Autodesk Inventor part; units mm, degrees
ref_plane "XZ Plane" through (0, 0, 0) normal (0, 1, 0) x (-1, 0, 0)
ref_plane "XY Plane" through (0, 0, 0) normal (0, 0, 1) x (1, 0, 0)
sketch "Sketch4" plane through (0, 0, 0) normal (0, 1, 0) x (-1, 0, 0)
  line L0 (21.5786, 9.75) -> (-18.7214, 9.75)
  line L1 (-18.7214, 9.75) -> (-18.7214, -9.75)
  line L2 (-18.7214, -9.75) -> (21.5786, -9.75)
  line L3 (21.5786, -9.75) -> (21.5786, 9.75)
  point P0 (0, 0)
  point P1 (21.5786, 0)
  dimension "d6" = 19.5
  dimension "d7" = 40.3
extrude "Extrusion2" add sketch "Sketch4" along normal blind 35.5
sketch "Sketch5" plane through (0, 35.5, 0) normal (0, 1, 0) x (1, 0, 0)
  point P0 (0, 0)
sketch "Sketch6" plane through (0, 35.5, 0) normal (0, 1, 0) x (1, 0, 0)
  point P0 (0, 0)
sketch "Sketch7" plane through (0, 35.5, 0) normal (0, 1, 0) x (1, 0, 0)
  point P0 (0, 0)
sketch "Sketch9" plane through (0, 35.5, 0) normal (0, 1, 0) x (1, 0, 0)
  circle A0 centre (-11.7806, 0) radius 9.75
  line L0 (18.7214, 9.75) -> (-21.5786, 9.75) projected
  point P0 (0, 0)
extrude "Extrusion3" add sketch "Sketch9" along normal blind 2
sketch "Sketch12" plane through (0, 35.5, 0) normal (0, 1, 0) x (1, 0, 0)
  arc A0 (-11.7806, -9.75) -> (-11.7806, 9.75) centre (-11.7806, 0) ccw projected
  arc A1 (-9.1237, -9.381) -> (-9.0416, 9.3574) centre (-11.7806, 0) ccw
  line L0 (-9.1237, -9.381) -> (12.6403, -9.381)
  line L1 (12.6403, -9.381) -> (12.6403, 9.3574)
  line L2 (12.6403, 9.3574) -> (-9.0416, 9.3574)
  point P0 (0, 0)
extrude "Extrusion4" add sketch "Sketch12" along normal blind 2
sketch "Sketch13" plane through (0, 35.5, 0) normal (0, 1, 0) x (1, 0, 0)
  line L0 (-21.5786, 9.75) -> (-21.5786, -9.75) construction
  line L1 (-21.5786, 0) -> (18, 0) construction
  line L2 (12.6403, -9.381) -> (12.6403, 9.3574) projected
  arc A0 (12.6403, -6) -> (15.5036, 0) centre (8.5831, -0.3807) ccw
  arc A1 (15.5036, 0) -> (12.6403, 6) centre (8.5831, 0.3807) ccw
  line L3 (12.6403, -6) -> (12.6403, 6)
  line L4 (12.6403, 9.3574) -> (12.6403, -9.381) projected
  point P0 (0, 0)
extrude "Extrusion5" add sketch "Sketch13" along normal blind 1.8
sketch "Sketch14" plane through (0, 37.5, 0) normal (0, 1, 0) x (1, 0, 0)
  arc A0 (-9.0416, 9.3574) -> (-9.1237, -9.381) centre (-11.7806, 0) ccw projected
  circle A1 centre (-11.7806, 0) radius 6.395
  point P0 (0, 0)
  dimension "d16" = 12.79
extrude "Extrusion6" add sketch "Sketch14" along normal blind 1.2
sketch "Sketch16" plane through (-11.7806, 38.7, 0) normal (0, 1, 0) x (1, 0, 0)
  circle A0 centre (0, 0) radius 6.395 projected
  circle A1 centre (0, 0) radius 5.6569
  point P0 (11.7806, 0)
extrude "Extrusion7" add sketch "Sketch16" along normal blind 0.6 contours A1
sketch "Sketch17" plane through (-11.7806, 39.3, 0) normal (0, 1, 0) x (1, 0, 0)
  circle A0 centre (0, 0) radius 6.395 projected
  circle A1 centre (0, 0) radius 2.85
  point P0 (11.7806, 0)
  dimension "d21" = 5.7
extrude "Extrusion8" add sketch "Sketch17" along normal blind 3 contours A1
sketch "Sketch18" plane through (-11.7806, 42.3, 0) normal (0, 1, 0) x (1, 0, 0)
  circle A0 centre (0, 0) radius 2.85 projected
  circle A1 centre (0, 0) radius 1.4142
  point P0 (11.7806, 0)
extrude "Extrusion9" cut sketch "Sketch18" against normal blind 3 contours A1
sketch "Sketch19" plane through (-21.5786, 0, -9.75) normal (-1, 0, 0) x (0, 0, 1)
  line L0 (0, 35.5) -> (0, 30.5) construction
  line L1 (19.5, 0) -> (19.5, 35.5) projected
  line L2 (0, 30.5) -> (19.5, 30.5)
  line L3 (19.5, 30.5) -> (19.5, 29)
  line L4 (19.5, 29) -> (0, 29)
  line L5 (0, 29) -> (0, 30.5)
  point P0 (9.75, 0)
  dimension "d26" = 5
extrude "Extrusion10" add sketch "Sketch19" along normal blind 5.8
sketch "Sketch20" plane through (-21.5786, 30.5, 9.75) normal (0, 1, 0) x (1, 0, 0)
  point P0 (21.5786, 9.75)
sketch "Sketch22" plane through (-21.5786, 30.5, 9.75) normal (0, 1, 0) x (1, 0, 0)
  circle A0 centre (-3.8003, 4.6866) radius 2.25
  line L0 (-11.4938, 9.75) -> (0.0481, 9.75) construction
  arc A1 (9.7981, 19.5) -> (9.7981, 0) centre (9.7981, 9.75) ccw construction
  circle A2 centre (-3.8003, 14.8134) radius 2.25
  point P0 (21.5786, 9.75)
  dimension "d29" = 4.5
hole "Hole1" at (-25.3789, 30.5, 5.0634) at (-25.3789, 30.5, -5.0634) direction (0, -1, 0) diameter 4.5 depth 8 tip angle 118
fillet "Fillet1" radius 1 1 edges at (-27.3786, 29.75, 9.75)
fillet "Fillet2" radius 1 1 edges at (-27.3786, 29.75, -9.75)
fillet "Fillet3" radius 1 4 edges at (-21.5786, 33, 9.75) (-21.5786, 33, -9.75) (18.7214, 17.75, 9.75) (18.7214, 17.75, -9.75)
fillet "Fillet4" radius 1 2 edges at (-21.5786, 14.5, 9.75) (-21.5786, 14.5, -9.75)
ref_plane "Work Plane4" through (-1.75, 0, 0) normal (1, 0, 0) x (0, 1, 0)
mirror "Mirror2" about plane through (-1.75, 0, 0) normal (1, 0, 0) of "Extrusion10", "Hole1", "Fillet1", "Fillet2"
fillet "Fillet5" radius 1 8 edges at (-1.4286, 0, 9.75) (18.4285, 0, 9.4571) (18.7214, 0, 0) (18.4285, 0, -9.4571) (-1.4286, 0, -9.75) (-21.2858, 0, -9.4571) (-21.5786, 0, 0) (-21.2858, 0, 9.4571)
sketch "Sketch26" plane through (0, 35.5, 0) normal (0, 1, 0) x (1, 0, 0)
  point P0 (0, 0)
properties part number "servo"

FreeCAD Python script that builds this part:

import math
import FreeCAD as App
import Part
import Sketcher


def edges_at(feature, points):
    """Names of the edges that pass closest to the given points."""
    edges = feature.Shape.Edges
    near = lambda p: min(range(len(edges)), key=lambda i: edges[i].distToShape(Part.Vertex(*p))[0])
    return sorted({f"Edge{near(p) + 1}" for p in points})

doc = App.newDocument("Part")
body = doc.addObject("PartDesign::Body", "Body")

# Sketch on XZ plane
sketch1 = body.newObject("Sketcher::SketchObject", "Sketch")
sketch1.AttachmentSupport = (doc.getObject("XZ_Plane"), [""])
sketch1.MapMode = "FlatFace"
sketch1.addGeometry([
    Part.LineSegment(App.Vector(-22, -10, 0), App.Vector(-22, 10, 0)),
    Part.LineSegment(App.Vector(-22, 10, 0), App.Vector(19, 10, 0)),
    Part.LineSegment(App.Vector(19, 10, 0), App.Vector(19, -10, 0)),
    Part.LineSegment(App.Vector(19, -10, 0), App.Vector(-22, -10, 0)),
], False)
sketch1.addConstraint([
    Sketcher.Constraint("Coincident", 0, 2, 1, 1),
    Sketcher.Constraint("Coincident", 1, 2, 2, 1),
    Sketcher.Constraint("Coincident", 2, 2, 3, 1),
    Sketcher.Constraint("Coincident", 3, 2, 0, 1),
    Sketcher.Constraint("Vertical", 0),
    Sketcher.Constraint("Horizontal", 1),
    Sketcher.Constraint("Vertical", 2),
    Sketcher.Constraint("Horizontal", 3),
    Sketcher.Constraint("DistanceX", 1, 1, 1, 2, 40.3),
    Sketcher.Constraint("DistanceY", 0, 1, 0, 2, 19.5),
    Sketcher.Constraint("DistanceY", -1, 1, 0, 2, 9.75),
    Sketcher.Constraint("DistanceX", 0, 2, -1, 1, 21.5786),
])
pad1 = body.newObject("PartDesign::Pad", "Pad")
pad1.Profile = sketch1
pad1.Length = 35.5
pad1.Reversed = True

# Sketch on XZ plane
sketch2 = body.newObject("Sketcher::SketchObject", "Sketch001")
sketch2.AttachmentSupport = (doc.getObject("XZ_Plane"), [""])
sketch2.MapMode = "FlatFace"
sketch2.AttachmentOffset = App.Placement(App.Vector(0, 0, -35.5), App.Rotation())
sketch2.addGeometry(Part.Circle(App.Vector(-12, 0, 0), App.Vector(0, 0, 1), 10), False)
sketch2.addConstraint([
    Sketcher.Constraint("PointOnObject", 0, 3, -1),
    Sketcher.Constraint("Diameter", 0, 19.5),
    Sketcher.Constraint("DistanceX", 0, 3, -1, 1, 11.7806),
])
pad2 = body.newObject("PartDesign::Pad", "Pad001")
pad2.Profile = sketch2
pad2.Length = 2
pad2.Reversed = True

# Sketch on XZ plane
sketch3 = body.newObject("Sketcher::SketchObject", "Sketch002")
sketch3.AttachmentSupport = (doc.getObject("XZ_Plane"), [""])
sketch3.MapMode = "FlatFace"
sketch3.AttachmentOffset = App.Placement(App.Vector(0, 0, -35.5), App.Rotation())
sketch3.addGeometry([
    Part.ArcOfCircle(Part.Circle(App.Vector(-12, 0, 0), App.Vector(0, 0, 1), 10), math.radians(-74), math.radians(74)),
    Part.LineSegment(App.Vector(-9, 9, 0), App.Vector(13, 9, 0)),
    Part.LineSegment(App.Vector(13, 9, 0), App.Vector(13, -9, 0)),
    Part.LineSegment(App.Vector(13, -9, 0), App.Vector(-9, -9, 0)),
], False)
sketch3.addConstraint([
    Sketcher.Constraint("Coincident", 0, 2, 1, 1),
    Sketcher.Constraint("Coincident", 1, 2, 2, 1),
    Sketcher.Constraint("Coincident", 2, 2, 3, 1),
    Sketcher.Constraint("Coincident", 3, 2, 0, 1),
    Sketcher.Constraint("Horizontal", 1),
    Sketcher.Constraint("Vertical", 2),
    Sketcher.Constraint("Horizontal", 3),
    Sketcher.Constraint("PointOnObject", 0, 3, -1),
    Sketcher.Constraint("Radius", 0, 9.75),
    Sketcher.Constraint("DistanceX", 1, 1, 1, 2, 21.764),
    Sketcher.Constraint("DistanceX", 3, 2, 3, 1, 21.682),
    Sketcher.Constraint("DistanceY", 2, 2, 2, 1, 18.7384),
    Sketcher.Constraint("DistanceX", 0, 3, -1, 1, 11.7806),
])
pad3 = body.newObject("PartDesign::Pad", "Pad002")
pad3.Profile = sketch3
pad3.Length = 2
pad3.Reversed = True

# Sketch on XZ plane
sketch4 = body.newObject("Sketcher::SketchObject", "Sketch003")
sketch4.AttachmentSupport = (doc.getObject("XZ_Plane"), [""])
sketch4.MapMode = "FlatFace"
sketch4.AttachmentOffset = App.Placement(App.Vector(0, 0, -35.5), App.Rotation())
sketch4.addGeometry([
    Part.LineSegment(App.Vector(12.6403, -6, 0), App.Vector(12.6403, 6, 0)),
    Part.ArcOfCircle(Part.Circle(App.Vector(8.5831, 0.3807, 0), App.Vector(0, 0, 1), 6.930902), math.radians(-3.148695), math.radians(54.170277)),
    Part.ArcOfCircle(Part.Circle(App.Vector(8.5831, -0.3807, 0), App.Vector(0, 0, 1), 6.930963), math.radians(-54.170277), math.radians(3.148695)),
], False)
sketch4.addConstraint([
    Sketcher.Constraint("Coincident", 0, 2, 1, 2),
    Sketcher.Constraint("Coincident", 1, 1, 2, 2),
    Sketcher.Constraint("Coincident", 2, 1, 0, 1),
    Sketcher.Constraint("Vertical", 0),
    Sketcher.Constraint("Equal", 1, 2),
    Sketcher.Constraint("Symmetric", 1, 3, 2, 3, -1),
    Sketcher.Constraint("DistanceY", 0, 1, 0, 2, 12.0),
    Sketcher.Constraint("Radius", 1, 6.931),
    Sketcher.Constraint("DistanceX", -1, 1, 1, 3, 8.583),
    Sketcher.Constraint("DistanceY", -1, 1, 1, 3, 0.3807),
])
pad4 = body.newObject("PartDesign::Pad", "Pad003")
pad4.Profile = sketch4
pad4.Length = 1.8
pad4.Reversed = True

# Sketch on XZ plane
sketch5 = body.newObject("Sketcher::SketchObject", "Sketch004")
sketch5.AttachmentSupport = (doc.getObject("XZ_Plane"), [""])
sketch5.MapMode = "FlatFace"
sketch5.AttachmentOffset = App.Placement(App.Vector(0, 0, -37.5), App.Rotation())
sketch5.addGeometry(Part.Circle(App.Vector(-12, 0, 0), App.Vector(0, 0, 1), 6), False)
sketch5.addConstraint([
    Sketcher.Constraint("PointOnObject", 0, 3, -1),
    Sketcher.Constraint("Diameter", 0, 12.79),
    Sketcher.Constraint("DistanceX", 0, 3, -1, 1, 11.7806),
])
pad5 = body.newObject("PartDesign::Pad", "Pad004")
pad5.Profile = sketch5
pad5.Length = 1.2
pad5.Reversed = True

# Sketch on XZ plane
sketch6 = body.newObject("Sketcher::SketchObject", "Sketch005")
sketch6.AttachmentSupport = (doc.getObject("XZ_Plane"), [""])
sketch6.MapMode = "FlatFace"
sketch6.AttachmentOffset = App.Placement(App.Vector(0, 0, -38.7), App.Rotation())
sketch6.addGeometry(Part.Circle(App.Vector(-12, 0, 0), App.Vector(0, 0, 1), 6), False)
sketch6.addConstraint([
    Sketcher.Constraint("PointOnObject", 0, 3, -1),
    Sketcher.Constraint("Diameter", 0, 11.3138),
    Sketcher.Constraint("DistanceX", 0, 3, -1, 1, 11.7806),
])
pad6 = body.newObject("PartDesign::Pad", "Pad005")
pad6.Profile = sketch6
pad6.Length = 0.6
pad6.Reversed = True

# Sketch on XZ plane
sketch7 = body.newObject("Sketcher::SketchObject", "Sketch006")
sketch7.AttachmentSupport = (doc.getObject("XZ_Plane"), [""])
sketch7.MapMode = "FlatFace"
sketch7.AttachmentOffset = App.Placement(App.Vector(0, 0, -39.3), App.Rotation())
sketch7.addGeometry(Part.Circle(App.Vector(-11.8, 0, 0), App.Vector(0, 0, 1), 2.9), False)
sketch7.addConstraint([
    Sketcher.Constraint("PointOnObject", 0, 3, -1),
    Sketcher.Constraint("Diameter", 0, 5.7),
    Sketcher.Constraint("DistanceX", 0, 3, -1, 1, 11.7806),
])
pad7 = body.newObject("PartDesign::Pad", "Pad006")
pad7.Profile = sketch7
pad7.Length = 3
pad7.Reversed = True

# Sketch on XZ plane
sketch8 = body.newObject("Sketcher::SketchObject", "Sketch007")
sketch8.AttachmentSupport = (doc.getObject("XZ_Plane"), [""])
sketch8.MapMode = "FlatFace"
sketch8.AttachmentOffset = App.Placement(App.Vector(0, 0, -42.3), App.Rotation())
sketch8.addGeometry(Part.Circle(App.Vector(-11.8, 0, 0), App.Vector(0, 0, 1), 1.4), False)
sketch8.addConstraint([
    Sketcher.Constraint("PointOnObject", 0, 3, -1),
    Sketcher.Constraint("Diameter", 0, 2.8284),
    Sketcher.Constraint("DistanceX", 0, 3, -1, 1, 11.7806),
])
pocket1 = body.newObject("PartDesign::Pocket", "Pocket")
pocket1.Profile = sketch8
pocket1.Length = 3
pocket1.Reversed = True

# Sketch on YZ plane
sketch9 = body.newObject("Sketcher::SketchObject", "Sketch008")
sketch9.AttachmentSupport = (doc.getObject("YZ_Plane"), [""])
sketch9.MapMode = "FlatFace"
sketch9.AttachmentOffset = App.Placement(App.Vector(0, 0, -21.5786), App.Rotation())
sketch9.addGeometry([
    Part.LineSegment(App.Vector(29, -9.8, 0), App.Vector(29, 9.8, 0)),
    Part.LineSegment(App.Vector(29, 9.8, 0), App.Vector(30.5, 9.8, 0)),
    Part.LineSegment(App.Vector(30.5, 9.8, 0), App.Vector(30.5, -9.8, 0)),
    Part.LineSegment(App.Vector(30.5, -9.8, 0), App.Vector(29, -9.8, 0)),
], False)
sketch9.addConstraint([
    Sketcher.Constraint("Coincident", 0, 2, 1, 1),
    Sketcher.Constraint("Coincident", 1, 2, 2, 1),
    Sketcher.Constraint("Coincident", 2, 2, 3, 1),
    Sketcher.Constraint("Coincident", 3, 2, 0, 1),
    Sketcher.Constraint("Vertical", 0),
    Sketcher.Constraint("Horizontal", 1),
    Sketcher.Constraint("Vertical", 2),
    Sketcher.Constraint("Horizontal", 3),
    Sketcher.Constraint("DistanceX", 1, 1, 1, 2, 1.5),
    Sketcher.Constraint("DistanceY", 0, 1, 0, 2, 19.5),
    Sketcher.Constraint("DistanceX", -1, 1, 0, 2, 29.0),
    Sketcher.Constraint("DistanceY", -1, 1, 0, 2, 9.75),
])
pad8 = body.newObject("PartDesign::Pad", "Pad007")
pad8.Profile = sketch9
pad8.Length = 5.8
pad8.Reversed = True

# Sketch on XZ plane
sketch10 = body.newObject("Sketcher::SketchObject", "Sketch009")
sketch10.AttachmentSupport = (doc.getObject("XZ_Plane"), [""])
sketch10.MapMode = "FlatFace"
sketch10.AttachmentOffset = App.Placement(App.Vector(0, 0, -30.5), App.Rotation())
sketch10.addGeometry([
    Part.Circle(App.Vector(-25.4, 5.1, 0), App.Vector(0, 0, 1), 2.2),
    Part.Circle(App.Vector(-25.4, -5.1, 0), App.Vector(0, 0, 1), 2.2),
], False)
sketch10.addConstraint([
    Sketcher.Constraint("Equal", 0, 1),
    Sketcher.Constraint("Symmetric", 0, 3, 1, 3, -1),
    Sketcher.Constraint("Diameter", 0, 4.5),
    Sketcher.Constraint("DistanceX", 0, 3, -1, 1, 25.379),
    Sketcher.Constraint("DistanceY", -1, 1, 0, 3, 5.0634),
])
doc.recompute()
hole = body.newObject("PartDesign::Hole", "Hole")
hole.Profile = sketch10
hole.ThreadType = "None"
hole.Diameter = 4.5
hole.DepthType = "Dimension"
hole.Depth = 8
hole.DrillPoint = "Angled"
hole.DrillPointAngle = 118
hole.Reversed = True
doc.recompute()

fillet = body.newObject("PartDesign::Fillet", "Fillet")
fillet.Base = (hole, edges_at(hole, [(-27.379, 29.75, 9.75)]))
fillet.Radius = 1
doc.recompute()

fillet2 = body.newObject("PartDesign::Fillet", "Fillet001")
fillet2.Base = (fillet, edges_at(fillet, [(-27.379, 29.75, -9.75)]))
fillet2.Radius = 1
doc.recompute()

fillet3 = body.newObject("PartDesign::Fillet", "Fillet002")
fillet3.Base = (fillet2, edges_at(fillet2, [
    (-21.579, 33, 9.75),
    (-21.579, 33, -9.75),
    (18.721, 17.75, 9.75),
    (18.721, 17.75, -9.75),
]))
fillet3.Radius = 1
doc.recompute()

fillet4 = body.newObject("PartDesign::Fillet", "Fillet003")
fillet4.Base = (fillet3, edges_at(fillet3, [(-21.579, 14.5, 9.75), (-21.579, 14.5, -9.75)]))
fillet4.Radius = 1
doc.recompute()

datumplane = body.newObject("PartDesign::Plane", "DatumPlane")
datumplane.AttachmentSupport = (doc.getObject("YZ_Plane"), [""])
datumplane.MapMode = "FlatFace"
datumplane.AttachmentOffset = App.Placement(App.Vector(0, 0, -1.75), App.Rotation())
mirrored = body.newObject("PartDesign::Mirrored", "Mirrored")
mirrored.Originals = [pad8, hole, fillet, fillet2]
mirrored.MirrorPlane = (datumplane, [""])
body.Tip = mirrored
doc.recompute()

fillet5 = body.newObject("PartDesign::Fillet", "Fillet004")
fillet5.Base = (mirrored, edges_at(mirrored, [
    (-1.429, 0, 9.75),
    (18.428, 0, 9.457),
    (18.721, 0, 0),
    (18.428, 0, -9.457),
    (-1.429, 0, -9.75),
    (-21.286, 0, -9.457),
    (-21.579, 0, 0),
    (-21.286, 0, 9.457),
]))
fillet5.Radius = 1

doc.recompute()
